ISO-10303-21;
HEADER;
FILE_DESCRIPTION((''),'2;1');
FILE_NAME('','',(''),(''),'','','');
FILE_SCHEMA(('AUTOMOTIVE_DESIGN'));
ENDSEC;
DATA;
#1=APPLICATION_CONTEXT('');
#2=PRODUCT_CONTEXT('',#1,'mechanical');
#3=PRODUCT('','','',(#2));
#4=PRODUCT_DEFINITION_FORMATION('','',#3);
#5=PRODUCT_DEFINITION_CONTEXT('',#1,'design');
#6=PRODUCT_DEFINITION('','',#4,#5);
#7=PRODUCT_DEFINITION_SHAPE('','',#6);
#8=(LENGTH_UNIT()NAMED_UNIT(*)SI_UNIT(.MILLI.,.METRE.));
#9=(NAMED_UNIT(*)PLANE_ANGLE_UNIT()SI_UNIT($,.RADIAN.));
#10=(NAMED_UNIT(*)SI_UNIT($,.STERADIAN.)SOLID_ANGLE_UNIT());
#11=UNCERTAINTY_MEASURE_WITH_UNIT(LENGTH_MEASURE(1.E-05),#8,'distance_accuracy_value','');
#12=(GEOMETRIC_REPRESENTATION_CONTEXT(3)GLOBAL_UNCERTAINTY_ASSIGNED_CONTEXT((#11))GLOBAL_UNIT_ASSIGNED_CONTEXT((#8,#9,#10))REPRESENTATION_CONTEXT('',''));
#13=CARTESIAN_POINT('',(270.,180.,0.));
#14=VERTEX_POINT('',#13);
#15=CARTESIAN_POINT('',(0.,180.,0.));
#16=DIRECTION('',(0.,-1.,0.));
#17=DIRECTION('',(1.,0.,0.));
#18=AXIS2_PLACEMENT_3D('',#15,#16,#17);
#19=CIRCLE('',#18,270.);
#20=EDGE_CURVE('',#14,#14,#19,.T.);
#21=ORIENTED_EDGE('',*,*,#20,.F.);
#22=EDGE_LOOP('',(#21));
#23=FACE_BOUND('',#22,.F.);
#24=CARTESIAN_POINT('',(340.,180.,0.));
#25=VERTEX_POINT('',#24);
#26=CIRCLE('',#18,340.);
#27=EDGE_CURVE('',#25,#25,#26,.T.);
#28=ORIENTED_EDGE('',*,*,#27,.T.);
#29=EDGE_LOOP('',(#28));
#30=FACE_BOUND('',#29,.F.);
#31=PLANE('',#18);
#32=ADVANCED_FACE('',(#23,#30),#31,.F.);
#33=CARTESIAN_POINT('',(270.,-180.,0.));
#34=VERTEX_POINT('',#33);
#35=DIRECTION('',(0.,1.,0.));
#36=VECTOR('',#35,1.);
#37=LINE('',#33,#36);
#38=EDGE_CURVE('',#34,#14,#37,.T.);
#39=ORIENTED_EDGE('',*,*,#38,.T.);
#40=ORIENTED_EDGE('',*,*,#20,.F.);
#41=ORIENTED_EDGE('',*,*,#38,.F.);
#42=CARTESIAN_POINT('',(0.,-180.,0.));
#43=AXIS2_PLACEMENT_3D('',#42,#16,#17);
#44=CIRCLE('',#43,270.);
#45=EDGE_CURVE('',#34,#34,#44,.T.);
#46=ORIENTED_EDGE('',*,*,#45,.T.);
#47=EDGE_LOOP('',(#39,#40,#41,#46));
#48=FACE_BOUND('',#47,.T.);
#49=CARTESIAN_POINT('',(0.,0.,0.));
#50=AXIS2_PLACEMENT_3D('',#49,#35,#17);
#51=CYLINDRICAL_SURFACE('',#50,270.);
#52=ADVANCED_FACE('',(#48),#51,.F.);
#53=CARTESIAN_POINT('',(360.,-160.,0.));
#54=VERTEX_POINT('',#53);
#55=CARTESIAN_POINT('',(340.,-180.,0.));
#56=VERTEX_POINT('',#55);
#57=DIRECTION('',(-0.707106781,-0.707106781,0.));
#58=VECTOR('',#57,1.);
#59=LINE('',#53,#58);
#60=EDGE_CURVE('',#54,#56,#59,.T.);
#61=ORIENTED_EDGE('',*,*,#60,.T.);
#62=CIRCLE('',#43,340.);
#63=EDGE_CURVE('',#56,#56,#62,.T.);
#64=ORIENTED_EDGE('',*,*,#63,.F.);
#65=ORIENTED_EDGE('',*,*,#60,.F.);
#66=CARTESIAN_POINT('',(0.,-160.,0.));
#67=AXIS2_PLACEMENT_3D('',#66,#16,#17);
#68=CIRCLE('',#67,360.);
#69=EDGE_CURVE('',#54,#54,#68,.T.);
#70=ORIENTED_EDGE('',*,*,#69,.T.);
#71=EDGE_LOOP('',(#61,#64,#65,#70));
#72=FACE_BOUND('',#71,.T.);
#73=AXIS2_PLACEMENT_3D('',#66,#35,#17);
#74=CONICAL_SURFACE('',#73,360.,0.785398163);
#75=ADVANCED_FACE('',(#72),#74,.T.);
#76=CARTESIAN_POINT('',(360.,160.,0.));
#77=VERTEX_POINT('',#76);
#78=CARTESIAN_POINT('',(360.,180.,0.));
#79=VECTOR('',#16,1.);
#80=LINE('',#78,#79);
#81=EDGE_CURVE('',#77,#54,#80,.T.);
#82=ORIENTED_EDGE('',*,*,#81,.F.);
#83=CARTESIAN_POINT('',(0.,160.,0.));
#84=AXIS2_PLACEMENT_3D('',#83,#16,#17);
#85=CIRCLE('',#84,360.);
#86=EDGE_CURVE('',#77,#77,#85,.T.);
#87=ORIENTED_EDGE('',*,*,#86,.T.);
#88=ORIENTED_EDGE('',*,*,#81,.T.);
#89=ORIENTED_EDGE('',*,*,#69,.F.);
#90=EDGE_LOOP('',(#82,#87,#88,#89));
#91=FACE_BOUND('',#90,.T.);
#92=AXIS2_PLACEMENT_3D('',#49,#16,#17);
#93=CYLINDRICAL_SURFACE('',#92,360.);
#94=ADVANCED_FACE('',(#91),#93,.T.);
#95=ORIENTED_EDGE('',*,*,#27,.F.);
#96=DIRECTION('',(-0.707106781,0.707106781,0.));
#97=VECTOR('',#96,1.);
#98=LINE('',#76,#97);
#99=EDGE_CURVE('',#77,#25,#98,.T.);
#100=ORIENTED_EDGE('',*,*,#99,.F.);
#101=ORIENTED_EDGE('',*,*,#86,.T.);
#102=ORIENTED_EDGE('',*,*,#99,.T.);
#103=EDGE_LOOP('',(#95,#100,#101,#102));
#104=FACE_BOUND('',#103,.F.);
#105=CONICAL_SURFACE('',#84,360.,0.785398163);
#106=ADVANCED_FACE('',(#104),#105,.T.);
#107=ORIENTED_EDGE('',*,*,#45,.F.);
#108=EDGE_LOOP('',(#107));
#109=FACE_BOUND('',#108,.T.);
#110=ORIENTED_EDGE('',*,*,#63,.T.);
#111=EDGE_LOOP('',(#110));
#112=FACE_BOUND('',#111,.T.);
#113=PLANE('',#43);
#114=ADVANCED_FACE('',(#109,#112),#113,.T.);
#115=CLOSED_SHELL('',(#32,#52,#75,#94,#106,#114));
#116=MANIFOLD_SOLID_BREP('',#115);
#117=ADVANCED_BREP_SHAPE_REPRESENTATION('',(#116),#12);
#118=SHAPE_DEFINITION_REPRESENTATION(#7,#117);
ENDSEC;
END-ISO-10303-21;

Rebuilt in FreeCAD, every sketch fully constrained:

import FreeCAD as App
import Part
import Sketcher

V = App.Vector


def edges_at(feature, points):
    """Names of the edges that pass closest to the given points."""
    edges = feature.Shape.Edges
    near = lambda p: min(range(len(edges)), key=lambda i: edges[i].distToShape(Part.Vertex(*p))[0])
    return sorted({f"Edge{near(p) + 1}" for p in points})

doc = App.newDocument("Part")
body = doc.addObject("PartDesign::Body", "Body")

# Sketch on XZ plane
sketch1 = body.newObject("Sketcher::SketchObject", "Sketch")
sketch1.AttachmentSupport = (doc.getObject("XZ_Plane"), [""])
sketch1.MapMode = "FlatFace"
sketch1.addGeometry(Part.Circle(V(0, 0, 0), V(0, 0, 1), 360), False)
sketch1.addGeometry(Part.Circle(V(0, 0, 0), V(0, 0, 1), 270), False)
sketch1.addConstraint(Sketcher.Constraint("Coincident", 0, 3, -1, 1))
sketch1.addConstraint(Sketcher.Constraint("Coincident", 1, 3, -1, 1))
sketch1.addConstraint(Sketcher.Constraint("Diameter", 0, 720.0))
sketch1.addConstraint(Sketcher.Constraint("Diameter", 1, 540.0))
pad1 = body.newObject("PartDesign::Pad", "Pad")
pad1.Profile = sketch1
pad1.Length = 360
pad1.Midplane = True
doc.recompute()

chamfer = body.newObject("PartDesign::Chamfer", "Chamfer")
chamfer.Base = (pad1, edges_at(pad1, [(-360, -180, 0)]))
chamfer.Size = 20
doc.recompute()

chamfer2 = body.newObject("PartDesign::Chamfer", "Chamfer001")
chamfer2.Base = (chamfer, edges_at(chamfer, [(-360, 180, 0)]))
chamfer2.Size = 20

doc.recompute()
